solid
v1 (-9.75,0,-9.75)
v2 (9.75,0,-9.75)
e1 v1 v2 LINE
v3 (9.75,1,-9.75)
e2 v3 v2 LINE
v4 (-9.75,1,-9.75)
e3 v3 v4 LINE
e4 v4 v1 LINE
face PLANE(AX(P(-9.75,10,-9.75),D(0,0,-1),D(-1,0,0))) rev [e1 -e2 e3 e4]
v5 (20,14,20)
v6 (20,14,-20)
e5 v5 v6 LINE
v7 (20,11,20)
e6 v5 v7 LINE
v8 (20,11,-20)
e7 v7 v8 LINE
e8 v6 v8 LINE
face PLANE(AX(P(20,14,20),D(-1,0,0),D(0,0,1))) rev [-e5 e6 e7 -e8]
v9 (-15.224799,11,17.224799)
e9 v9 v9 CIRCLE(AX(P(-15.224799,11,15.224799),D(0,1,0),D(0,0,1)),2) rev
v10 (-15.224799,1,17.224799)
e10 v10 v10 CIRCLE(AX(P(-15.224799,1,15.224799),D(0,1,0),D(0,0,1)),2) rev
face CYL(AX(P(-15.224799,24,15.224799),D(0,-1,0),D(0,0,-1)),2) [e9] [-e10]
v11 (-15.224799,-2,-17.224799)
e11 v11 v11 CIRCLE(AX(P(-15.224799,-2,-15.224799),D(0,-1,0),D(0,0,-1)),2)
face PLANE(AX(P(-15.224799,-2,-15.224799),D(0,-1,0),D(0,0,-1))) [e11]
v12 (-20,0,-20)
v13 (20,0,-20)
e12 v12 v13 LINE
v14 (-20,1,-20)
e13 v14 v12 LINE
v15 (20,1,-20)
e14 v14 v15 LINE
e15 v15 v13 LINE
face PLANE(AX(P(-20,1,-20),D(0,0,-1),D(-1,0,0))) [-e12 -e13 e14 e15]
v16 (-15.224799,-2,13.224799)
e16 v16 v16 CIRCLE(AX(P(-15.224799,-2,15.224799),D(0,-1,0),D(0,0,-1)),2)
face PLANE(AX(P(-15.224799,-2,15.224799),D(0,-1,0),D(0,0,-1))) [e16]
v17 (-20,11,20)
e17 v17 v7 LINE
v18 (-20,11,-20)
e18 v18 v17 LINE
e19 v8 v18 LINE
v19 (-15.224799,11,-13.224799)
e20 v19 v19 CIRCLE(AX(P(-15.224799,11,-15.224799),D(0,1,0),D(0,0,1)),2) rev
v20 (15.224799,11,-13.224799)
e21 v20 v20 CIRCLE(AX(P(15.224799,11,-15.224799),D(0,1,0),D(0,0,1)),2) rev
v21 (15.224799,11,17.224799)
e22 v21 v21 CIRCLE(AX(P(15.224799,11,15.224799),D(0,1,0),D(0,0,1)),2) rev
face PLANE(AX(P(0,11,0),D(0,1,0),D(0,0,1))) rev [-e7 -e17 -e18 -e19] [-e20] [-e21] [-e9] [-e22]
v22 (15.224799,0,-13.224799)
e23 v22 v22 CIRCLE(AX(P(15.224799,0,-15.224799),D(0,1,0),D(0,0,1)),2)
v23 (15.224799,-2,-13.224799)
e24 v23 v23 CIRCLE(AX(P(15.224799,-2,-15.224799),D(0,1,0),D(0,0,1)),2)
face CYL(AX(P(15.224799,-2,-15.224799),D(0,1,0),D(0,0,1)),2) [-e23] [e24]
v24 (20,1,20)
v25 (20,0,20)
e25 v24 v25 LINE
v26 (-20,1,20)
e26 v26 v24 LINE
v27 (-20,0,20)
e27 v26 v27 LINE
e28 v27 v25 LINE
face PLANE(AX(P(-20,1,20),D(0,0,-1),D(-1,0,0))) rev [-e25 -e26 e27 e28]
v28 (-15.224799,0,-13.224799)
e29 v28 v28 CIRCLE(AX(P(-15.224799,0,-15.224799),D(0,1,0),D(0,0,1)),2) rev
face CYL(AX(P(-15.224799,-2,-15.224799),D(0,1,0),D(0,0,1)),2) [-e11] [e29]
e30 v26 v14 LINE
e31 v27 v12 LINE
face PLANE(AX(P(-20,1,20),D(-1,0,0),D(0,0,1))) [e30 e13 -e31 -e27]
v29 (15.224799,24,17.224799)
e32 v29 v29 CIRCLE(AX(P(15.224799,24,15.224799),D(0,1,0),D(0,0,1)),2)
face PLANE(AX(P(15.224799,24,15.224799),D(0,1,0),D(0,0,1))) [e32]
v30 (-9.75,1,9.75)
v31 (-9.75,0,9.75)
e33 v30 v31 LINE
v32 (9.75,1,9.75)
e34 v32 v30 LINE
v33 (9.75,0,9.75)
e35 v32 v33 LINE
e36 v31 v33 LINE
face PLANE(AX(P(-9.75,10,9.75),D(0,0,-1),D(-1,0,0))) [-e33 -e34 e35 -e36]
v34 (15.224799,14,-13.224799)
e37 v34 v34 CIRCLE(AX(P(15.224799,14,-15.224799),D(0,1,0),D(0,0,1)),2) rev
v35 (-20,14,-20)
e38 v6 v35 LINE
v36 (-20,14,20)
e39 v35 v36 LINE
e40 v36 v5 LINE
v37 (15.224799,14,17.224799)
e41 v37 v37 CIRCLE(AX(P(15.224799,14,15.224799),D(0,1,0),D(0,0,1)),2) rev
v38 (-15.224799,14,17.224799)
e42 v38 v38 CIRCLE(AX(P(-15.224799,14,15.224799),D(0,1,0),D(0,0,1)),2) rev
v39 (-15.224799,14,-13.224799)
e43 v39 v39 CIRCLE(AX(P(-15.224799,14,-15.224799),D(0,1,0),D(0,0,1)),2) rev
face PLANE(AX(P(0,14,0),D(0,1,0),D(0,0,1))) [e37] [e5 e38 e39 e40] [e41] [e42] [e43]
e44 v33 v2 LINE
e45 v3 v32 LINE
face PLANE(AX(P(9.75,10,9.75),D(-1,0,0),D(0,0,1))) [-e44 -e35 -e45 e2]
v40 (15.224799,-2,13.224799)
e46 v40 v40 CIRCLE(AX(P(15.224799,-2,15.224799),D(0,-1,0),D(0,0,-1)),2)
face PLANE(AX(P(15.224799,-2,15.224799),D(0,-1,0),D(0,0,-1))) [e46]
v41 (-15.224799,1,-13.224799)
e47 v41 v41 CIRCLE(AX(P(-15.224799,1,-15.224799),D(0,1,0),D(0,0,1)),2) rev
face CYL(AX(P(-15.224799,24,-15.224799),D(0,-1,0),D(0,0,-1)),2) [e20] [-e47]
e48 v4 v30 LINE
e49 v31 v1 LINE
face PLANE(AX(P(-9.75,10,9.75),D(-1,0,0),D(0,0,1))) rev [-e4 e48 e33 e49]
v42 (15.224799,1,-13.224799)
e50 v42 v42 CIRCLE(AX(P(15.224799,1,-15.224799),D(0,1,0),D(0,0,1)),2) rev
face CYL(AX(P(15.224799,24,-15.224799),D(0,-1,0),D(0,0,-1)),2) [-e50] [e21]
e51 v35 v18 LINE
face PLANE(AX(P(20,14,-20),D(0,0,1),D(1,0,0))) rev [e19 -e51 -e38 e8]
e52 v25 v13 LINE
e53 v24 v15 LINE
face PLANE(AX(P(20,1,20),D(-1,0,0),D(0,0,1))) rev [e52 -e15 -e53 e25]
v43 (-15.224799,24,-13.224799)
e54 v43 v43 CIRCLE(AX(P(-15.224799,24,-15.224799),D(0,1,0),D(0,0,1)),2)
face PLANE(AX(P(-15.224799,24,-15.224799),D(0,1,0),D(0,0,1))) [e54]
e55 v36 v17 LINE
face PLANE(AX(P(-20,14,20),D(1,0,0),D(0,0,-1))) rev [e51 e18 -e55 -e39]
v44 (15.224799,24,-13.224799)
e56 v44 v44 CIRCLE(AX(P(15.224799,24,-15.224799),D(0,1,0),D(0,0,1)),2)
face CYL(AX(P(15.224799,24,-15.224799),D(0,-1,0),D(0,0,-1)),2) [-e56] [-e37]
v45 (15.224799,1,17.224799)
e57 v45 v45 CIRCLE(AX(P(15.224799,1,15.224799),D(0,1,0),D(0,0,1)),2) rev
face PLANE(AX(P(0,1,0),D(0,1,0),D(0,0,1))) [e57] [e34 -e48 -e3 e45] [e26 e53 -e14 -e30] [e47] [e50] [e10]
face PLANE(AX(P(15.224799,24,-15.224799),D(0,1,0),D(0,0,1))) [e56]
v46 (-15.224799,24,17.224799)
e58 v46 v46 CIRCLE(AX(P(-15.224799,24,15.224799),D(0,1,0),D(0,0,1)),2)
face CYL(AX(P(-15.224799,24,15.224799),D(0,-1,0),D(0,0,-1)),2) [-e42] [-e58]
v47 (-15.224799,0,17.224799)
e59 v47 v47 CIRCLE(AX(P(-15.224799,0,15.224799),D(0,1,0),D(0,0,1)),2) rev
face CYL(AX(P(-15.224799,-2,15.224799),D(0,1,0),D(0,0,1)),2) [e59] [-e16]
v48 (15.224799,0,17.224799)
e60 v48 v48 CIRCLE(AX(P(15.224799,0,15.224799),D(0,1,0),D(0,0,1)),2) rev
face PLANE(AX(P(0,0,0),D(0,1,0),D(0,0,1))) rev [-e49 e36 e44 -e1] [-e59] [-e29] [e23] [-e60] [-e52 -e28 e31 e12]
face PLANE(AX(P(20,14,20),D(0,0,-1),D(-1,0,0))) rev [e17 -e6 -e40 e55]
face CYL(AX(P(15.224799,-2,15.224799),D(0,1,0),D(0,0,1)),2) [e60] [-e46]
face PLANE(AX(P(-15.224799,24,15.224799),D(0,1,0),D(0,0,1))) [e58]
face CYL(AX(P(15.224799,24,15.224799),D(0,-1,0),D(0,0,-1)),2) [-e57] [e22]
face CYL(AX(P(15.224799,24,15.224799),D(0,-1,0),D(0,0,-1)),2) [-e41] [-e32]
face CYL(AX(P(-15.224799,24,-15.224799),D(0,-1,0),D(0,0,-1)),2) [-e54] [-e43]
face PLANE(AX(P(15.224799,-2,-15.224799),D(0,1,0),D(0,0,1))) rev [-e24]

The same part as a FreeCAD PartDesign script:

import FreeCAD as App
import Part
import Sketcher
Q = App.Units.Quantity

doc = App.newDocument("Part")
params = doc.addObject("Spreadsheet::Sheet", "Params")
for row, (alias, value) in enumerate([
    ("sketch1_width", "40 mm"),
    ("pad1_length", "1 mm"),
    ("sketch2_diameter", "4 mm"),
    ("pocket1_length", "3 mm"),
    ("sketch3_width", "40 mm"),
    ("pad2_length", "3 mm"),
    ("sketch4_diameter", "4 mm"),
    ("pad3_length", "24 mm"),
    ("sketch5_diameter", "4 mm"),
    ("pad4_length", "2 mm"),
    ("sketch6_width", "19.5 mm"),
    ("pocket2_length", "10 mm"),
], start=1):
    params.set(f"A{row}", alias)
    params.set(f"B{row}", "=" + value)
    params.setAlias(f"B{row}", alias)

body = doc.addObject("PartDesign::Body", "Body")

# Sketch on XZ plane
sketch1 = doc.addObject("Sketcher::SketchObject", "Sketch")
body.addObject(sketch1)
sketch1.AttachmentSupport = (doc.XZ_Plane, [""])
sketch1.MapMode = "FlatFace"
sketch1.addGeometry(Part.LineSegment(App.Vector(-20, -20, 0), App.Vector(-20, 20, 0)), False)
sketch1.addGeometry(Part.LineSegment(App.Vector(-20, 20, 0), App.Vector(20, 20, 0)), False)
sketch1.addGeometry(Part.LineSegment(App.Vector(20, 20, 0), App.Vector(20, -20, 0)), False)
sketch1.addGeometry(Part.LineSegment(App.Vector(20, -20, 0), App.Vector(-20, -20, 0)), False)
sketch1.addConstraint(Sketcher.Constraint("Coincident", 0, 2, 1, 1))
sketch1.addConstraint(Sketcher.Constraint("Coincident", 1, 2, 2, 1))
sketch1.addConstraint(Sketcher.Constraint("Coincident", 2, 2, 3, 1))
sketch1.addConstraint(Sketcher.Constraint("Coincident", 3, 2, 0, 1))
sketch1.addConstraint(Sketcher.Constraint("Vertical", 0))
sketch1.addConstraint(Sketcher.Constraint("Horizontal", 1))
sketch1.addConstraint(Sketcher.Constraint("Vertical", 2))
sketch1.addConstraint(Sketcher.Constraint("Horizontal", 3))
sketch1.addConstraint(Sketcher.Constraint("Symmetric", 0, 2, 2, 2, -1, 1))
sketch1.addConstraint(Sketcher.Constraint("Equal", 3, 0))
sketch1.addConstraint(Sketcher.Constraint("DistanceX", 1, 1, 1, 2, Q("40 mm")))
sketch1.setExpression("Constraints[10]", "Params.sketch1_width")
pad1 = doc.addObject("PartDesign::Pad", "Pad")
body.addObject(pad1)
pad1.Profile = sketch1
pad1.setExpression("Length", "Params.pad1_length")
pad1.Reversed = True

# Sketch on XZ plane
sketch2 = doc.addObject("Sketcher::SketchObject", "Sketch001")
body.addObject(sketch2)
sketch2.AttachmentSupport = (doc.XZ_Plane, [""])
sketch2.MapMode = "FlatFace"
sketch2.addGeometry(Part.Circle(App.Vector(-15.2, 15.2, 0), App.Vector(0, 0, 1), 2), False)
sketch2.addGeometry(Part.Circle(App.Vector(15.2, 15.2, 0), App.Vector(0, 0, 1), 2), False)
sketch2.addGeometry(Part.Circle(App.Vector(15.2, -15.2, 0), App.Vector(0, 0, 1), 2), False)
sketch2.addGeometry(Part.Circle(App.Vector(-15.2, -15.2, 0), App.Vector(0, 0, 1), 2), False)
sketch2.addConstraint(Sketcher.Constraint("Equal", 0, 1))
sketch2.addConstraint(Sketcher.Constraint("Equal", 1, 2))
sketch2.addConstraint(Sketcher.Constraint("Equal", 2, 3))
sketch2.addConstraint(Sketcher.Constraint("Symmetric", 0, 3, 2, 3, -1, 1))
sketch2.addConstraint(Sketcher.Constraint("Symmetric", 1, 3, 3, 3, -1, 1))
sketch2.addConstraint(Sketcher.Constraint("Symmetric", 0, 3, 1, 3, -2))
sketch2.addConstraint(Sketcher.Constraint("Diameter", 0, Q("4 mm")))
sketch2.addConstraint(Sketcher.Constraint("DistanceX", 0, 3, -1, 1, Q("15.224799 mm")))
sketch2.addConstraint(Sketcher.Constraint("DistanceY", -1, 1, 0, 3, Q("15.224799 mm")))
sketch2.setExpression("Constraints[6]", "Params.sketch2_diameter")
pocket1 = doc.addObject("PartDesign::Pocket", "Pocket")
body.addObject(pocket1)
pocket1.Profile = sketch2
pocket1.setExpression("Length", "Params.pocket1_length")
body2 = doc.addObject("PartDesign::Body", "Body001")

# Sketch on XZ plane
sketch3 = doc.addObject("Sketcher::SketchObject", "Sketch002")
body2.addObject(sketch3)
sketch3.AttachmentSupport = (doc.getObject("XZ_Plane001"), [""])
sketch3.MapMode = "FlatFace"
sketch3.AttachmentOffset = App.Placement(App.Vector(0, 0, -11), App.Rotation())
sketch3.addGeometry(Part.LineSegment(App.Vector(-20, -20, 0), App.Vector(-20, 20, 0)), False)
sketch3.addGeometry(Part.LineSegment(App.Vector(-20, 20, 0), App.Vector(20, 20, 0)), False)
sketch3.addGeometry(Part.LineSegment(App.Vector(20, 20, 0), App.Vector(20, -20, 0)), False)
sketch3.addGeometry(Part.LineSegment(App.Vector(20, -20, 0), App.Vector(-20, -20, 0)), False)
sketch3.addConstraint(Sketcher.Constraint("Coincident", 0, 2, 1, 1))
sketch3.addConstraint(Sketcher.Constraint("Coincident", 1, 2, 2, 1))
sketch3.addConstraint(Sketcher.Constraint("Coincident", 2, 2, 3, 1))
sketch3.addConstraint(Sketcher.Constraint("Coincident", 3, 2, 0, 1))
sketch3.addConstraint(Sketcher.Constraint("Vertical", 0))
sketch3.addConstraint(Sketcher.Constraint("Horizontal", 1))
sketch3.addConstraint(Sketcher.Constraint("Vertical", 2))
sketch3.addConstraint(Sketcher.Constraint("Horizontal", 3))
sketch3.addConstraint(Sketcher.Constraint("Symmetric", 0, 2, 2, 2, -1, 1))
sketch3.addConstraint(Sketcher.Constraint("Equal", 3, 0))
sketch3.addConstraint(Sketcher.Constraint("DistanceX", 1, 1, 1, 2, Q("40 mm")))
sketch3.setExpression("Constraints[10]", "Params.sketch3_width")
pad2 = doc.addObject("PartDesign::Pad", "Pad001")
body2.addObject(pad2)
pad2.Profile = sketch3
pad2.setExpression("Length", "Params.pad2_length")
pad2.Reversed = True

# Sketch on XZ plane
sketch4 = doc.addObject("Sketcher::SketchObject", "Sketch003")
body2.addObject(sketch4)
sketch4.AttachmentSupport = (doc.getObject("XZ_Plane001"), [""])
sketch4.MapMode = "FlatFace"
sketch4.addGeometry(Part.Circle(App.Vector(-15.2, 15.2, 0), App.Vector(0, 0, 1), 2), False)
sketch4.addGeometry(Part.Circle(App.Vector(15.2, 15.2, 0), App.Vector(0, 0, 1), 2), False)
sketch4.addGeometry(Part.Circle(App.Vector(15.2, -15.2, 0), App.Vector(0, 0, 1), 2), False)
sketch4.addGeometry(Part.Circle(App.Vector(-15.2, -15.2, 0), App.Vector(0, 0, 1), 2), False)
sketch4.addConstraint(Sketcher.Constraint("Equal", 0, 1))
sketch4.addConstraint(Sketcher.Constraint("Equal", 1, 2))
sketch4.addConstraint(Sketcher.Constraint("Equal", 2, 3))
sketch4.addConstraint(Sketcher.Constraint("Symmetric", 0, 3, 2, 3, -1, 1))
sketch4.addConstraint(Sketcher.Constraint("Symmetric", 1, 3, 3, 3, -1, 1))
sketch4.addConstraint(Sketcher.Constraint("Symmetric", 0, 3, 1, 3, -2))
sketch4.addConstraint(Sketcher.Constraint("Diameter", 0, Q("4 mm")))
sketch4.addConstraint(Sketcher.Constraint("DistanceX", 0, 3, -1, 1, Q("15.224799 mm")))
sketch4.addConstraint(Sketcher.Constraint("DistanceY", -1, 1, 0, 3, Q("15.224799 mm")))
sketch4.setExpression("Constraints[6]", "Params.sketch4_diameter")
pad3 = doc.addObject("PartDesign::Pad", "Pad002")
body2.addObject(pad3)
pad3.Profile = sketch4
pad3.setExpression("Length", "Params.pad3_length")
pad3.Reversed = True
doc.recompute()

boolean = doc.addObject("PartDesign::Boolean", "Boolean")
body.addObject(boolean)
boolean.Type = "Fuse"
boolean.addObjects([body2])

# Sketch on XZ plane
sketch5 = doc.addObject("Sketcher::SketchObject", "Sketch004")
body.addObject(sketch5)
sketch5.AttachmentSupport = (doc.XZ_Plane, [""])
sketch5.MapMode = "FlatFace"
sketch5.AttachmentOffset = App.Placement(App.Vector(0, 0, 2), App.Rotation())
sketch5.addGeometry(Part.Circle(App.Vector(15.2, -15.2, 0), App.Vector(0, 0, 1), 2), False)
sketch5.addGeometry(Part.Circle(App.Vector(-15.2, 15.2, 0), App.Vector(0, 0, 1), 2), False)
sketch5.addGeometry(Part.Circle(App.Vector(15.2, 15.2, 0), App.Vector(0, 0, 1), 2), False)
sketch5.addGeometry(Part.Circle(App.Vector(-15.2, -15.2, 0), App.Vector(0, 0, 1), 2), False)
sketch5.addConstraint(Sketcher.Constraint("Equal", 0, 1))
sketch5.addConstraint(Sketcher.Constraint("Equal", 1, 2))
sketch5.addConstraint(Sketcher.Constraint("Equal", 2, 3))
sketch5.addConstraint(Sketcher.Constraint("Symmetric", 0, 3, 1, 3, -1, 1))
sketch5.addConstraint(Sketcher.Constraint("Symmetric", 2, 3, 3, 3, -1, 1))
sketch5.addConstraint(Sketcher.Constraint("Symmetric", 1, 3, 2, 3, -2))
sketch5.addConstraint(Sketcher.Constraint("Diameter", 0, Q("4 mm")))
sketch5.addConstraint(Sketcher.Constraint("DistanceX", -1, 1, 0, 3, Q("15.224799 mm")))
sketch5.addConstraint(Sketcher.Constraint("DistanceY", 0, 3, -1, 1, Q("15.224799 mm")))
sketch5.setExpression("Constraints[6]", "Params.sketch5_diameter")
pad4 = doc.addObject("PartDesign::Pad", "Pad003")
body.addObject(pad4)
pad4.Profile = sketch5
pad4.setExpression("Length", "Params.pad4_length")
pad4.Reversed = True

# Sketch on XZ plane
sketch6 = doc.addObject("Sketcher::SketchObject", "Sketch005")
body.addObject(sketch6)
sketch6.AttachmentSupport = (doc.XZ_Plane, [""])
sketch6.MapMode = "FlatFace"
sketch6.addGeometry(Part.LineSegment(App.Vector(-10, -10, 0), App.Vector(-10, 10, 0)), False)
sketch6.addGeometry(Part.LineSegment(App.Vector(-10, 10, 0), App.Vector(10, 10, 0)), False)
sketch6.addGeometry(Part.LineSegment(App.Vector(10, 10, 0), App.Vector(10, -10, 0)), False)
sketch6.addGeometry(Part.LineSegment(App.Vector(10, -10, 0), App.Vector(-10, -10, 0)), False)
sketch6.addConstraint(Sketcher.Constraint("Coincident", 0, 2, 1, 1))
sketch6.addConstraint(Sketcher.Constraint("Coincident", 1, 2, 2, 1))
sketch6.addConstraint(Sketcher.Constraint("Coincident", 2, 2, 3, 1))
sketch6.addConstraint(Sketcher.Constraint("Coincident", 3, 2, 0, 1))
sketch6.addConstraint(Sketcher.Constraint("Vertical", 0))
sketch6.addConstraint(Sketcher.Constraint("Horizontal", 1))
sketch6.addConstraint(Sketcher.Constraint("Vertical", 2))
sketch6.addConstraint(Sketcher.Constraint("Horizontal", 3))
sketch6.addConstraint(Sketcher.Constraint("Symmetric", 0, 2, 2, 2, -1, 1))
sketch6.addConstraint(Sketcher.Constraint("Equal", 3, 0))
sketch6.addConstraint(Sketcher.Constraint("DistanceX", 1, 1, 1, 2, Q("19.5 mm")))
sketch6.setExpression("Constraints[10]", "Params.sketch6_width")
pocket2 = doc.addObject("PartDesign::Pocket", "Pocket001")
body.addObject(pocket2)
pocket2.Profile = sketch6
pocket2.setExpression("Length", "Params.pocket2_length")

doc.recompute()
